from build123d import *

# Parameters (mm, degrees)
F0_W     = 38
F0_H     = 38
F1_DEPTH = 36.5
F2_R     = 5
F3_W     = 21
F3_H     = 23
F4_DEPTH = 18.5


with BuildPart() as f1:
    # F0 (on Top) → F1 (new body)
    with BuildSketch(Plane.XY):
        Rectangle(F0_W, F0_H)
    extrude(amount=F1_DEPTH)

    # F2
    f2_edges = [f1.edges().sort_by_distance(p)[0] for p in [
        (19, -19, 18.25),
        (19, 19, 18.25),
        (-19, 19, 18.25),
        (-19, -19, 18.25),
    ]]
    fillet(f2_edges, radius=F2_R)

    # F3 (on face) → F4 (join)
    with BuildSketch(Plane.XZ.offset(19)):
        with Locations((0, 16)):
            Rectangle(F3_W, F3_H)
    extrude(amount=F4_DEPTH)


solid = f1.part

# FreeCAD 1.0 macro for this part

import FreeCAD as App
import Part
import Sketcher
from FreeCAD import Vector


def edges_at(feature, points):
    """Names of the edges that pass closest to the given points."""
    edges = feature.Shape.Edges
    near = lambda p: min(range(len(edges)), key=lambda i: edges[i].distToShape(Part.Vertex(*p))[0])
    return sorted({f"Edge{near(p) + 1}" for p in points})

doc = App.newDocument("Part")
body = doc.addObject("PartDesign::Body", "Body")

# Sketch on XY plane
sketch1 = body.newObject("Sketcher::SketchObject", "Sketch")
sketch1.AttachmentSupport = (doc.getObject("XY_Plane"), [""])
sketch1.MapMode = "FlatFace"
sketch1.addGeometry([
    Part.LineSegment(Vector(-19, 19, 0), Vector(-19, -19, 0)),
    Part.LineSegment(Vector(-19, -19, 0), Vector(19, -19, 0)),
    Part.LineSegment(Vector(19, -19, 0), Vector(19, 19, 0)),
    Part.LineSegment(Vector(19, 19, 0), Vector(-19, 19, 0)),
], False)
sketch1.addConstraint([
    Sketcher.Constraint("Coincident", 0, 2, 1, 1),
    Sketcher.Constraint("Coincident", 1, 2, 2, 1),
    Sketcher.Constraint("Coincident", 2, 2, 3, 1),
    Sketcher.Constraint("Coincident", 3, 2, 0, 1),
    Sketcher.Constraint("Vertical", 0),
    Sketcher.Constraint("Horizontal", 1),
    Sketcher.Constraint("Vertical", 2),
    Sketcher.Constraint("Horizontal", 3),
    Sketcher.Constraint("Symmetric", 0, 2, 2, 2, -1, 1),
    Sketcher.Constraint("Equal", 3, 0),
    Sketcher.Constraint("DistanceX", 1, 1, 1, 2, 38.0),
])
pad1 = body.newObject("PartDesign::Pad", "Pad")
pad1.Profile = sketch1
pad1.Length = 36.5
doc.recompute()

fillet = body.newObject("PartDesign::Fillet", "Fillet")
fillet.Base = (pad1, edges_at(pad1, [
    (19, -19, 18.25),
    (19, 19, 18.25),
    (-19, 19, 18.25),
    (-19, -19, 18.25),
]))
fillet.Radius = 5

# Sketch on XZ plane
sketch2 = body.newObject("Sketcher::SketchObject", "Sketch001")
sketch2.AttachmentSupport = (doc.getObject("XZ_Plane"), [""])
sketch2.MapMode = "FlatFace"
sketch2.AttachmentOffset = App.Placement(Vector(0, 0, 19), App.Rotation())
sketch2.addGeometry([
    Part.LineSegment(Vector(-10, 28, 0), Vector(-10, 4, 0)),
    Part.LineSegment(Vector(-10, 4, 0), Vector(10, 4, 0)),
    Part.LineSegment(Vector(10, 4, 0), Vector(10, 28, 0)),
    Part.LineSegment(Vector(10, 28, 0), Vector(-10, 28, 0)),
], False)
sketch2.addConstraint([
    Sketcher.Constraint("Coincident", 0, 2, 1, 1),
    Sketcher.Constraint("Coincident", 1, 2, 2, 1),
    Sketcher.Constraint("Coincident", 2, 2, 3, 1),
    Sketcher.Constraint("Coincident", 3, 2, 0, 1),
    Sketcher.Constraint("Vertical", 0),
    Sketcher.Constraint("Horizontal", 1),
    Sketcher.Constraint("Vertical", 2),
    Sketcher.Constraint("Horizontal", 3),
    Sketcher.Constraint("DistanceX", 1, 1, 1, 2, 21.0),
    Sketcher.Constraint("DistanceY", 0, 2, 0, 1, 23.0),
    Sketcher.Constraint("DistanceX", 0, 2, -1, 1, 10.5),
    Sketcher.Constraint("DistanceY", -1, 1, 0, 2, 4.5),
])
pad2 = body.newObject("PartDesign::Pad", "Pad001")
pad2.Profile = sketch2
pad2.Length = 18.5

doc.recompute()
